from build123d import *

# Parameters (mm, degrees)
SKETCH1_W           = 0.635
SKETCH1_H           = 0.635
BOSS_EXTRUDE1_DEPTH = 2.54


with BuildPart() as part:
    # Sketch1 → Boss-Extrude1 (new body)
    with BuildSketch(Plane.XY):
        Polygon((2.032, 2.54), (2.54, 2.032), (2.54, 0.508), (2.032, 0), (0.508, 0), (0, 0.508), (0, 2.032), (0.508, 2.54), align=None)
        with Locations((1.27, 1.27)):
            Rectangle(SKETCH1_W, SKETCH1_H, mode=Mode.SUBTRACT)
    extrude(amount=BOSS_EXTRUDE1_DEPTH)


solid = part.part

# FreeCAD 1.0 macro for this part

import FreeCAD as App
import Part
import Sketcher

V = App.Vector
Q = App.Units.Quantity


def add_polygon(sketch, points):
    """Adds a closed chain of lines whose ends are joined by coincident constraints."""
    first, n = sketch.GeometryCount, len(points)
    for a, b in zip(points, points[1:] + points[:1]):
        sketch.addGeometry(Part.LineSegment(App.Vector(*a, 0), App.Vector(*b, 0)), False)
    for i in range(n):
        sketch.addConstraint(Sketcher.Constraint("Coincident", first + i, 2, first + (i + 1) % n, 1))

doc = App.newDocument("Part")
params = doc.addObject("Spreadsheet::Sheet", "Params")
for row, (alias, value) in enumerate([
    ("sketch1_width", "0.06 in"),
    ("sketch1_width2", "0.025 in"),
    ("pad1_length", "0.1 in"),
], start=1):
    params.set(f"A{row}", alias)
    params.set(f"B{row}", "=" + value)
    params.setAlias(f"B{row}", alias)

body = doc.addObject("PartDesign::Body", "Body")

sketch1 = doc.addObject("Sketcher::SketchObject", "Sketch")
body.addObject(sketch1)
sketch1.AttachmentSupport = (doc.XY_Plane, [""])
sketch1.MapMode = "FlatFace"
add_polygon(sketch1, [(2.5, 2), (2, 2.5), (0.5, 2.5), (0, 2), (0, 0.5), (0.5, 0), (2, 0), (2.5, 0.5)])
add_polygon(sketch1, [(1, 1), (1, 1.6), (1.6, 1.6), (1.6, 1)])
sketch1.addConstraint([
    Sketcher.Constraint("Horizontal", 1),
    Sketcher.Constraint("Vertical", 3),
    Sketcher.Constraint("Horizontal", 5),
    Sketcher.Constraint("Vertical", 7),
    Sketcher.Constraint("Vertical", 8),
    Sketcher.Constraint("Horizontal", 9),
    Sketcher.Constraint("Vertical", 10),
    Sketcher.Constraint("Horizontal", 11),
    Sketcher.Constraint("PointOnObject", 2, 2, -2),
    Sketcher.Constraint("PointOnObject", 4, 2, -1),
    Sketcher.Constraint("Perpendicular", 0, 2),
    Sketcher.Constraint("Perpendicular", 2, 4),
    Sketcher.Constraint("Perpendicular", 4, 6),
    Sketcher.Constraint("Horizontal", 3, 2, 6, 2),
    Sketcher.Constraint("Horizontal", 2, 2, 7, 2),
    Sketcher.Constraint("Vertical", 1, 2, 4, 2),
    Sketcher.Constraint("Vertical", 0, 2, 5, 2),
    Sketcher.Constraint("Equal", 5, 3),
    Sketcher.Constraint("Equal", 11, 8),
    Sketcher.Constraint("DistanceX", 1, 2, 1, 1, Q("0.06 in")),
    Sketcher.Constraint("DistanceY", -1, 1, 0, 2, Q("0.1 in")),
    Sketcher.Constraint("DistanceX", 9, 1, 9, 2, Q("0.025 in")),
    Sketcher.Constraint("DistanceY", -1, 1, 8, 2, Q("0.0625 in")),
    Sketcher.Constraint("DistanceX", -1, 1, 9, 2, Q("0.0625 in")),
])
sketch1.setExpression("Constraints[31]", "Params.sketch1_width")
sketch1.setExpression("Constraints[33]", "Params.sketch1_width2")
pad1 = doc.addObject("PartDesign::Pad", "Pad")
body.addObject(pad1)
pad1.Profile = sketch1
pad1.setExpression("Length", "Params.pad1_length")

doc.recompute()
